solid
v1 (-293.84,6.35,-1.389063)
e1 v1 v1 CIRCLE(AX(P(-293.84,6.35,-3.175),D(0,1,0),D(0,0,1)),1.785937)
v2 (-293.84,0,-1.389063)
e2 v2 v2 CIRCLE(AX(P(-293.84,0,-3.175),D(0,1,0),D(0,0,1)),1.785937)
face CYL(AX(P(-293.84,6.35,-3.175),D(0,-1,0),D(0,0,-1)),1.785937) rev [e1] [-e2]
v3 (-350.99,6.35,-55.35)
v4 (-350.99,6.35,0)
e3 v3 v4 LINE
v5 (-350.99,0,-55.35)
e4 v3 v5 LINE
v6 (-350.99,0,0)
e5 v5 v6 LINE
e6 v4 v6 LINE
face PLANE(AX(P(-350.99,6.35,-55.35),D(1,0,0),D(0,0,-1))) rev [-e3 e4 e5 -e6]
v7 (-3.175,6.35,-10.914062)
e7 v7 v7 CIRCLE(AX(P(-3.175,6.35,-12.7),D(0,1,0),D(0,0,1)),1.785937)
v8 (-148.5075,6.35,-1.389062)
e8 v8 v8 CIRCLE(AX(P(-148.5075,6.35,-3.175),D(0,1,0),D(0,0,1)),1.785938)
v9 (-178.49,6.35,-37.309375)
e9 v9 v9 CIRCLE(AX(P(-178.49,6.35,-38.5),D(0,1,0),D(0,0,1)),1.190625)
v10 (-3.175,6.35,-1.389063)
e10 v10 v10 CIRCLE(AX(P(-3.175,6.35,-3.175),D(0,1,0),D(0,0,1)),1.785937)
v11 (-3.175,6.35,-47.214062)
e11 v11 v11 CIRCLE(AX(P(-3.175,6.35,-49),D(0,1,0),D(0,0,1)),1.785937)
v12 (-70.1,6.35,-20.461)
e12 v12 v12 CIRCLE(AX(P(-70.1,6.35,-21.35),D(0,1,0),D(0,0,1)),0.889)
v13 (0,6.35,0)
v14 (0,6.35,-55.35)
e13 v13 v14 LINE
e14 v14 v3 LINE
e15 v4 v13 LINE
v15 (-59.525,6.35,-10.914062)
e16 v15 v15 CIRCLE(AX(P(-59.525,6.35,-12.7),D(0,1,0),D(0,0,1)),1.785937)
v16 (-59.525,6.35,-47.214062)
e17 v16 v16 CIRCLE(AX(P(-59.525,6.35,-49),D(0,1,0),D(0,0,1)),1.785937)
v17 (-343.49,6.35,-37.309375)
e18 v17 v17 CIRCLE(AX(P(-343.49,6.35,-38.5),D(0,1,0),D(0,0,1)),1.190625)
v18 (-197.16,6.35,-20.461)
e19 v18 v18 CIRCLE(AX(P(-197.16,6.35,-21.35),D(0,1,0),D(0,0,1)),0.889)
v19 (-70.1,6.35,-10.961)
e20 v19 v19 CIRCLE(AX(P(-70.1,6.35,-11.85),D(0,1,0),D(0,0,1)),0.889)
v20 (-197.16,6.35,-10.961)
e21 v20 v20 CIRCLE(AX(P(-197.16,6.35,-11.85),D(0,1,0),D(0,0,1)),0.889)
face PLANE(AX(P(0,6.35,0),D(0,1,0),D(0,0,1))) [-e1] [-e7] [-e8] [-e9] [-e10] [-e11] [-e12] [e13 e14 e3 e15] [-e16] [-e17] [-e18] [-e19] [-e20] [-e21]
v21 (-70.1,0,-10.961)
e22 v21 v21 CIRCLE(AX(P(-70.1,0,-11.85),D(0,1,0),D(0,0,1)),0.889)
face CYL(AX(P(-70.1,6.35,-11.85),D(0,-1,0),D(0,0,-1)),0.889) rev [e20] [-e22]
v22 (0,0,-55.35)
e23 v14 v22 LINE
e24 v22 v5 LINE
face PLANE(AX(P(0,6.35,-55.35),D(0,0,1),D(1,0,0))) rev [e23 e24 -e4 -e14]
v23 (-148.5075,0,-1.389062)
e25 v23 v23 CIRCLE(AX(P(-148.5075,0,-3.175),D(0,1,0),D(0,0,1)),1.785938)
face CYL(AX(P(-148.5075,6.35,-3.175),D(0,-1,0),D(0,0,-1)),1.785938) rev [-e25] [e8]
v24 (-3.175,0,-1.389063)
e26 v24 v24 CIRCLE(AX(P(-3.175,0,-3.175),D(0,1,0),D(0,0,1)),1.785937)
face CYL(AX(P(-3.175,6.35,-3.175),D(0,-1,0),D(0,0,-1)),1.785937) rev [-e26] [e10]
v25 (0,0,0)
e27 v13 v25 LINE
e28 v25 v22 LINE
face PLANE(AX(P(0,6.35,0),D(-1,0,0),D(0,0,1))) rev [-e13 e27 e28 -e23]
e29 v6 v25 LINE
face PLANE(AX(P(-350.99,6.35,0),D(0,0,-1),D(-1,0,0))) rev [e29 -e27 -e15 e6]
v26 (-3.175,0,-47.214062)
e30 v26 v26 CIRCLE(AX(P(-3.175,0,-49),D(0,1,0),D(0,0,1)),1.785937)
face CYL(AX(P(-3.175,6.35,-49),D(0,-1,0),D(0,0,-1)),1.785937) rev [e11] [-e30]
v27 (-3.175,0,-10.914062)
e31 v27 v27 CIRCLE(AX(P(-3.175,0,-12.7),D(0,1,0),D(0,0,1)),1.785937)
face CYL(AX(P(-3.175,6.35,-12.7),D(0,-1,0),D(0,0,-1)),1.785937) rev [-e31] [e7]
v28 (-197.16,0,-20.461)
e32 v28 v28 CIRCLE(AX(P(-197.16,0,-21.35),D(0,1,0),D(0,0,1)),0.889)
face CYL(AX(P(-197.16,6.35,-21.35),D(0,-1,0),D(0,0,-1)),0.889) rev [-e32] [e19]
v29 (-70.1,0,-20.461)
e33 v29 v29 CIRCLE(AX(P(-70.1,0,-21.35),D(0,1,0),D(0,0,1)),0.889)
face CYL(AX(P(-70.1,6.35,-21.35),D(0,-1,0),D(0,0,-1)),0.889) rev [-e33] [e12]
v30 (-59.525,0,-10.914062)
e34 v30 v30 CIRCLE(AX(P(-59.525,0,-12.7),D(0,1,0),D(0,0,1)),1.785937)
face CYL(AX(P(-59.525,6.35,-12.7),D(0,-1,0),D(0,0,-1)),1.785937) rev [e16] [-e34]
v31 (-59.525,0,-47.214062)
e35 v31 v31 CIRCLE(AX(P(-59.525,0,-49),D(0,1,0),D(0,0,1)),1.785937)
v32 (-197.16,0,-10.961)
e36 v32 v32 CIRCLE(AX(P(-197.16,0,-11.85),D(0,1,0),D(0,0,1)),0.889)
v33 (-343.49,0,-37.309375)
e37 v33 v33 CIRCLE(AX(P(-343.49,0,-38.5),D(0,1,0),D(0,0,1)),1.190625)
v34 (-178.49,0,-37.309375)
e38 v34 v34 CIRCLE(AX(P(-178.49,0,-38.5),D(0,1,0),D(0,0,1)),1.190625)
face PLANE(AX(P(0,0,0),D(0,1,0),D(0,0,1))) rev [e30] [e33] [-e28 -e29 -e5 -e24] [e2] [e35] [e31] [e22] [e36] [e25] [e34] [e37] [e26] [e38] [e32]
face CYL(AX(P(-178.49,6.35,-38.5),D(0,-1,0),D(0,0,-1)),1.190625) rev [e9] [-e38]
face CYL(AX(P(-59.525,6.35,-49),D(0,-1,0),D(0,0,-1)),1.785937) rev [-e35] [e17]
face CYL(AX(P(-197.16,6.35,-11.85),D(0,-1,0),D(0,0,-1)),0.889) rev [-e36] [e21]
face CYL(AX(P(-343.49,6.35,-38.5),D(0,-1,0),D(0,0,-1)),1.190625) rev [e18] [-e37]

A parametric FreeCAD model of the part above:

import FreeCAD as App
import Part
import Sketcher
Q = App.Units.Quantity

doc = App.newDocument("Part")
body = doc.addObject("PartDesign::Body", "Body")

sketch1 = doc.addObject("Sketcher::SketchObject", "Sketch")
body.addObject(sketch1)
sketch1.AttachmentSupport = (doc.XZ_Plane, [""])
sketch1.MapMode = "FlatFace"
sketch1.addGeometry(Part.LineSegment(App.Vector(-351, -55.4, 0), App.Vector(-351, 0, 0)), False)
sketch1.addGeometry(Part.LineSegment(App.Vector(-351, 0, 0), App.Vector(0, 0, 0)), False)
sketch1.addGeometry(Part.LineSegment(App.Vector(0, 0, 0), App.Vector(0, -55.4, 0)), False)
sketch1.addGeometry(Part.LineSegment(App.Vector(0, -55.4, 0), App.Vector(-351, -55.4, 0)), False)
sketch1.addGeometry(Part.Circle(App.Vector(-293.8, -3.2, 0), App.Vector(0, 0, 1), 1.8), False)
sketch1.addGeometry(Part.Circle(App.Vector(-197.2, -11.8, 0), App.Vector(0, 0, 1), 0.9), False)
sketch1.addGeometry(Part.Circle(App.Vector(-197.2, -21.4, 0), App.Vector(0, 0, 1), 0.9), False)
sketch1.addGeometry(Part.Circle(App.Vector(-148.5, -3.2, 0), App.Vector(0, 0, 1), 1.8), False)
sketch1.addGeometry(Part.Circle(App.Vector(-3.2, -3.2, 0), App.Vector(0, 0, 1), 1.8), False)
sketch1.addGeometry(Part.Circle(App.Vector(-70.1, -11.8, 0), App.Vector(0, 0, 1), 0.9), False)
sketch1.addGeometry(Part.Circle(App.Vector(-59.5, -12.7, 0), App.Vector(0, 0, 1), 1.8), False)
sketch1.addGeometry(Part.Circle(App.Vector(-3.2, -12.7, 0), App.Vector(0, 0, 1), 1.8), False)
sketch1.addGeometry(Part.Circle(App.Vector(-70.1, -21.4, 0), App.Vector(0, 0, 1), 0.9), False)
sketch1.addGeometry(Part.Circle(App.Vector(-343.5, -38.5, 0), App.Vector(0, 0, 1), 1.2), False)
sketch1.addGeometry(Part.Circle(App.Vector(-178.5, -38.5, 0), App.Vector(0, 0, 1), 1.2), False)
sketch1.addGeometry(Part.Circle(App.Vector(-59.5, -49, 0), App.Vector(0, 0, 1), 1.8), False)
sketch1.addGeometry(Part.Circle(App.Vector(-3.2, -49, 0), App.Vector(0, 0, 1), 1.8), False)
sketch1.addConstraint(Sketcher.Constraint("Coincident", 0, 2, 1, 1))
sketch1.addConstraint(Sketcher.Constraint("Coincident", 1, 2, 2, 1))
sketch1.addConstraint(Sketcher.Constraint("Coincident", 2, 2, 3, 1))
sketch1.addConstraint(Sketcher.Constraint("Coincident", 3, 2, 0, 1))
sketch1.addConstraint(Sketcher.Constraint("Vertical", 0))
sketch1.addConstraint(Sketcher.Constraint("Horizontal", 1))
sketch1.addConstraint(Sketcher.Constraint("Vertical", 2))
sketch1.addConstraint(Sketcher.Constraint("Horizontal", 3))
sketch1.addConstraint(Sketcher.Constraint("Coincident", 1, 2, -1, 1))
sketch1.addConstraint(Sketcher.Constraint("Equal", 5, 6))
sketch1.addConstraint(Sketcher.Constraint("Equal", 4, 7))
sketch1.addConstraint(Sketcher.Constraint("Equal", 7, 8))
sketch1.addConstraint(Sketcher.Constraint("Equal", 6, 9))
sketch1.addConstraint(Sketcher.Constraint("Equal", 8, 10))
sketch1.addConstraint(Sketcher.Constraint("Equal", 10, 11))
sketch1.addConstraint(Sketcher.Constraint("Equal", 9, 12))
sketch1.addConstraint(Sketcher.Constraint("Equal", 13, 14))
sketch1.addConstraint(Sketcher.Constraint("Equal", 11, 15))
sketch1.addConstraint(Sketcher.Constraint("Equal", 15, 16))
sketch1.addConstraint(Sketcher.Constraint("Horizontal", 4, 3, 7, 3))
sketch1.addConstraint(Sketcher.Constraint("Horizontal", 7, 3, 8, 3))
sketch1.addConstraint(Sketcher.Constraint("Horizontal", 5, 3, 9, 3))
sketch1.addConstraint(Sketcher.Constraint("Horizontal", 10, 3, 11, 3))
sketch1.addConstraint(Sketcher.Constraint("Horizontal", 6, 3, 12, 3))
sketch1.addConstraint(Sketcher.Constraint("Horizontal", 13, 3, 14, 3))
sketch1.addConstraint(Sketcher.Constraint("Horizontal", 15, 3, 16, 3))
sketch1.addConstraint(Sketcher.Constraint("Vertical", 5, 3, 6, 3))
sketch1.addConstraint(Sketcher.Constraint("Vertical", 8, 3, 11, 3))
sketch1.addConstraint(Sketcher.Constraint("Vertical", 9, 3, 12, 3))
sketch1.addConstraint(Sketcher.Constraint("Vertical", 10, 3, 15, 3))
sketch1.addConstraint(Sketcher.Constraint("Vertical", 11, 3, 16, 3))
sketch1.addConstraint(Sketcher.Constraint("Diameter", 5, Q("0.07 in")))
sketch1.addConstraint(Sketcher.Constraint("Diameter", 4, Q("0.140625 in")))
sketch1.addConstraint(Sketcher.Constraint("Diameter", 13, Q("0.09375 in")))
sketch1.addConstraint(Sketcher.Constraint("DistanceY", 10, 3, -1, 1, Q("0.5 in")))
sketch1.addConstraint(Sketcher.Constraint("DistanceX", 0, 2, 4, 3, Q("2.25 in")))
sketch1.addConstraint(Sketcher.Constraint("DistanceY", 2, 2, 16, 3, Q("0.25 in")))
sketch1.addConstraint(Sketcher.Constraint("DistanceY", 4, 3, -1, 1, Q("0.125 in")))
sketch1.addConstraint(Sketcher.Constraint("DistanceX", 8, 3, -1, 1, Q("0.125 in")))
sketch1.addConstraint(Sketcher.Constraint("DistanceX", 1, 1, 1, 2, Q("350.99 mm")))
sketch1.addConstraint(Sketcher.Constraint("DistanceY", 0, 1, 0, 2, Q("55.35 mm")))
sketch1.addConstraint(Sketcher.Constraint("DistanceX", 5, 3, -1, 1, Q("197.16 mm")))
sketch1.addConstraint(Sketcher.Constraint("DistanceY", 5, 3, -1, 1, Q("11.85 mm")))
sketch1.addConstraint(Sketcher.Constraint("DistanceY", 6, 3, -1, 1, Q("21.35 mm")))
sketch1.addConstraint(Sketcher.Constraint("DistanceX", 7, 3, -1, 1, Q("148.5075 mm")))
sketch1.addConstraint(Sketcher.Constraint("DistanceX", 9, 3, -1, 1, Q("70.1 mm")))
sketch1.addConstraint(Sketcher.Constraint("DistanceX", 10, 3, -1, 1, Q("59.525 mm")))
sketch1.addConstraint(Sketcher.Constraint("DistanceX", 13, 3, -1, 1, Q("343.49 mm")))
sketch1.addConstraint(Sketcher.Constraint("DistanceY", 13, 3, -1, 1, Q("38.5 mm")))
sketch1.addConstraint(Sketcher.Constraint("DistanceX", 14, 3, -1, 1, Q("178.49 mm")))
pad1 = doc.addObject("PartDesign::Pad", "Pad")
body.addObject(pad1)
pad1.Profile = sketch1
pad1.Length = Q("0.25 in")
pad1.Reversed = True

doc.recompute()
